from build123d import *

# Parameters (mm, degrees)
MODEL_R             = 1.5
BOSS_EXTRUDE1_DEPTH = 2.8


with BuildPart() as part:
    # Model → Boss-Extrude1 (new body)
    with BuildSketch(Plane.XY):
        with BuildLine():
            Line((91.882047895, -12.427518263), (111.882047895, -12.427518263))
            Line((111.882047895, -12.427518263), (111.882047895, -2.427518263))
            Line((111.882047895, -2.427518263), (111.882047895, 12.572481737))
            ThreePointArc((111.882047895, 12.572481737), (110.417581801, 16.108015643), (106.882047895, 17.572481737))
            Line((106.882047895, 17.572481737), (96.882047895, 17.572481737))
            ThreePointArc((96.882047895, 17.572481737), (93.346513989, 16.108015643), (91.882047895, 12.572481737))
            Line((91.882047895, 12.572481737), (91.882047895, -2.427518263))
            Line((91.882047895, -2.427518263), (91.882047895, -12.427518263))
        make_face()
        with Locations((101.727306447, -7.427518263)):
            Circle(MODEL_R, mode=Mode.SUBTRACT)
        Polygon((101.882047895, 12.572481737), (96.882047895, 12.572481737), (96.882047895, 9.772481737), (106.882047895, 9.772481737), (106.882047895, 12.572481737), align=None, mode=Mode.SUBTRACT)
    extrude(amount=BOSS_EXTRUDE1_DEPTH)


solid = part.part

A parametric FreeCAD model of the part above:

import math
import FreeCAD as App
import Part
import Sketcher
Q = App.Units.Quantity

doc = App.newDocument("Part")
body = doc.addObject("PartDesign::Body", "Body")

# Sketch on XY plane
sketch1 = doc.addObject("Sketcher::SketchObject", "Sketch")
body.addObject(sketch1)
sketch1.AttachmentSupport = (doc.XY_Plane, [""])
sketch1.MapMode = "FlatFace"
sketch1.addGeometry([
    Part.LineSegment(App.Vector(91.9, -12.4, 0), App.Vector(111.9, -12.4, 0)),  # 0
    Part.LineSegment(App.Vector(111.9, -12.4, 0), App.Vector(111.9, 12.6, 0)),  # 1
    Part.ArcOfCircle(Part.Circle(App.Vector(106.9, 12.6, 0), App.Vector(0, 0, 1), 5), math.radians(0), math.radians(90)),  # 2
    Part.LineSegment(App.Vector(106.9, 17.6, 0), App.Vector(96.9, 17.6, 0)),  # 3
    Part.ArcOfCircle(Part.Circle(App.Vector(96.9, 12.6, 0), App.Vector(0, 0, 1), 5), math.radians(90), math.radians(180)),  # 4
    Part.LineSegment(App.Vector(91.9, 12.6, 0), App.Vector(91.9, -12.4, 0)),  # 5
    Part.Circle(App.Vector(101.7, -7.4, 0), App.Vector(0, 0, 1), 1.5),  # 6
    Part.LineSegment(App.Vector(96.9, 12.6, 0), App.Vector(106.9, 12.6, 0)),  # 7
    Part.LineSegment(App.Vector(106.9, 12.6, 0), App.Vector(106.9, 9.8, 0)),  # 8
    Part.LineSegment(App.Vector(106.9, 9.8, 0), App.Vector(96.9, 9.8, 0)),  # 9
    Part.LineSegment(App.Vector(96.9, 9.8, 0), App.Vector(96.9, 12.6, 0)),  # 10
], False)
sketch1.addConstraint([
    Sketcher.Constraint("Coincident", 0, 2, 1, 1),
    Sketcher.Constraint("Tangent", 1, 2, 2, 1),
    Sketcher.Constraint("Tangent", 2, 2, 3, 1),
    Sketcher.Constraint("Tangent", 3, 2, 4, 1),
    Sketcher.Constraint("Tangent", 4, 2, 5, 1),
    Sketcher.Constraint("Coincident", 5, 2, 0, 1),
    Sketcher.Constraint("Coincident", 7, 2, 8, 1),
    Sketcher.Constraint("Coincident", 8, 2, 9, 1),
    Sketcher.Constraint("Coincident", 9, 2, 10, 1),
    Sketcher.Constraint("Coincident", 10, 2, 7, 1),
    Sketcher.Constraint("Horizontal", 0),
    Sketcher.Constraint("Vertical", 1),
    Sketcher.Constraint("Horizontal", 3),
    Sketcher.Constraint("Vertical", 5),
    Sketcher.Constraint("Horizontal", 7),
    Sketcher.Constraint("Vertical", 8),
    Sketcher.Constraint("Horizontal", 9),
    Sketcher.Constraint("Vertical", 10),
    Sketcher.Constraint("Coincident", 7, 2, 2, 3),
    Sketcher.Constraint("Coincident", 10, 2, 4, 3),
    Sketcher.Constraint("Diameter", 6, Q("3 mm")),
    Sketcher.Constraint("Radius", 2, Q("5 mm")),
    Sketcher.Constraint("DistanceX", 0, 1, 0, 2, Q("20 mm")),
    Sketcher.Constraint("DistanceY", 1, 1, 1, 2, Q("25 mm")),
    Sketcher.Constraint("DistanceY", 8, 2, 8, 1, Q("2.8 mm")),
    Sketcher.Constraint("DistanceY", 6, 3, 4, 3, Q("20 mm")),
    Sketcher.Constraint("DistanceY", -1, 1, 2, 3, Q("12.572482 mm")),
    Sketcher.Constraint("DistanceX", 4, 3, 6, 3, Q("4.845259 mm")),
    Sketcher.Constraint("DistanceX", -1, 1, 2, 3, Q("106.882048 mm")),
])
pad1 = doc.addObject("PartDesign::Pad", "Pad")
body.addObject(pad1)
pad1.Profile = sketch1
pad1.Length = 2.8

doc.recompute()
